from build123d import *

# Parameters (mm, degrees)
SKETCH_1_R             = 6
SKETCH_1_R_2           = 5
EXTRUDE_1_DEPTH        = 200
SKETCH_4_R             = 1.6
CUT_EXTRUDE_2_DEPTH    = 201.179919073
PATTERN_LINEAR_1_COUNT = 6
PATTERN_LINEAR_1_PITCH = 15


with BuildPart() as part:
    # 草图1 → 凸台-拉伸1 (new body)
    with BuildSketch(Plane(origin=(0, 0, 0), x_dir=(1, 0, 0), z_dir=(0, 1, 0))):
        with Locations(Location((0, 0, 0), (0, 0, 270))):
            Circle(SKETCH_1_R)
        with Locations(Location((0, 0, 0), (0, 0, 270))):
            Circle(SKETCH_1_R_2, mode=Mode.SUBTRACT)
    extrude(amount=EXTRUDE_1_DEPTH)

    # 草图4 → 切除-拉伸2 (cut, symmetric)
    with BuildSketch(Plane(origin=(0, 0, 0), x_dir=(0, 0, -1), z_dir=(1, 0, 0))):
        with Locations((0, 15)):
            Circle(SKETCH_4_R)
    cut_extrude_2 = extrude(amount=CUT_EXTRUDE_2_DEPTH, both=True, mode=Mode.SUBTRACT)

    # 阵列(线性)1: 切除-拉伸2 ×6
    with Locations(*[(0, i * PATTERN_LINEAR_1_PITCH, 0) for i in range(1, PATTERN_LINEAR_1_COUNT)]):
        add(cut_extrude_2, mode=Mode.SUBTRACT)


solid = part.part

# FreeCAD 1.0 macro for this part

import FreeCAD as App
import Part
import Sketcher
from FreeCAD import Vector

doc = App.newDocument("Part")
params = doc.addObject("Spreadsheet::Sheet", "Params")
for row, (alias, value) in enumerate([
    ("sketch1_diameter", "12 mm"),
    ("sketch1_diameter2", "10 mm"),
    ("pad1_length", "200 mm"),
    ("sketch2_diameter", "3.2 mm"),
    ("pocket1_length", "402.359838 mm"),
    ("linearpattern_pitch", "15 mm"),
], start=1):
    params.set(f"A{row}", alias)
    params.set(f"B{row}", "=" + value)
    params.setAlias(f"B{row}", alias)

body = doc.addObject("PartDesign::Body", "Body")

# Sketch on XZ plane
sketch1 = body.newObject("Sketcher::SketchObject", "Sketch")
sketch1.AttachmentSupport = (doc.getObject("XZ_Plane"), [""])
sketch1.MapMode = "FlatFace"
sketch1.addGeometry(Part.Circle(Vector(0, 0, 0), Vector(0, 0, 1), 6), False)
sketch1.addGeometry(Part.Circle(Vector(0, 0, 0), Vector(0, 0, 1), 5), False)
sketch1.addConstraint(Sketcher.Constraint("Coincident", 0, 3, -1, 1))
sketch1.addConstraint(Sketcher.Constraint("Coincident", 1, 3, -1, 1))
sketch1.addConstraint(Sketcher.Constraint("Diameter", 0, 12.0))
sketch1.addConstraint(Sketcher.Constraint("Diameter", 1, 10.0))
sketch1.setExpression("Constraints[2]", "Params.sketch1_diameter")
sketch1.setExpression("Constraints[3]", "Params.sketch1_diameter2")
pad1 = body.newObject("PartDesign::Pad", "Pad")
pad1.Profile = sketch1
pad1.setExpression("Length", "Params.pad1_length")
pad1.Reversed = True

# Sketch on YZ plane
sketch2 = body.newObject("Sketcher::SketchObject", "Sketch001")
sketch2.AttachmentSupport = (doc.getObject("YZ_Plane"), [""])
sketch2.MapMode = "FlatFace"
sketch2.addGeometry(Part.Circle(Vector(15, 0, 0), Vector(0, 0, 1), 1.6), False)
sketch2.addConstraint(Sketcher.Constraint("PointOnObject", 0, 3, -1))
sketch2.addConstraint(Sketcher.Constraint("Diameter", 0, 3.2))
sketch2.addConstraint(Sketcher.Constraint("DistanceX", -1, 1, 0, 3, 15.0))
sketch2.setExpression("Constraints[1]", "Params.sketch2_diameter")
pocket1 = body.newObject("PartDesign::Pocket", "Pocket")
pocket1.Profile = sketch2
pocket1.setExpression("Length", "Params.pocket1_length")
pocket1.Midplane = True
doc.recompute()

linearpattern = body.newObject("PartDesign::LinearPattern", "LinearPattern")
linearpattern.Originals = [pocket1]
linearpattern.Direction = (doc.getObject("Y_Axis"), [""])
linearpattern.Mode = "offset"
linearpattern.setExpression("Offset", "Params.linearpattern_pitch")
linearpattern.Occurrences = 6
body.Tip = linearpattern

doc.recompute()
